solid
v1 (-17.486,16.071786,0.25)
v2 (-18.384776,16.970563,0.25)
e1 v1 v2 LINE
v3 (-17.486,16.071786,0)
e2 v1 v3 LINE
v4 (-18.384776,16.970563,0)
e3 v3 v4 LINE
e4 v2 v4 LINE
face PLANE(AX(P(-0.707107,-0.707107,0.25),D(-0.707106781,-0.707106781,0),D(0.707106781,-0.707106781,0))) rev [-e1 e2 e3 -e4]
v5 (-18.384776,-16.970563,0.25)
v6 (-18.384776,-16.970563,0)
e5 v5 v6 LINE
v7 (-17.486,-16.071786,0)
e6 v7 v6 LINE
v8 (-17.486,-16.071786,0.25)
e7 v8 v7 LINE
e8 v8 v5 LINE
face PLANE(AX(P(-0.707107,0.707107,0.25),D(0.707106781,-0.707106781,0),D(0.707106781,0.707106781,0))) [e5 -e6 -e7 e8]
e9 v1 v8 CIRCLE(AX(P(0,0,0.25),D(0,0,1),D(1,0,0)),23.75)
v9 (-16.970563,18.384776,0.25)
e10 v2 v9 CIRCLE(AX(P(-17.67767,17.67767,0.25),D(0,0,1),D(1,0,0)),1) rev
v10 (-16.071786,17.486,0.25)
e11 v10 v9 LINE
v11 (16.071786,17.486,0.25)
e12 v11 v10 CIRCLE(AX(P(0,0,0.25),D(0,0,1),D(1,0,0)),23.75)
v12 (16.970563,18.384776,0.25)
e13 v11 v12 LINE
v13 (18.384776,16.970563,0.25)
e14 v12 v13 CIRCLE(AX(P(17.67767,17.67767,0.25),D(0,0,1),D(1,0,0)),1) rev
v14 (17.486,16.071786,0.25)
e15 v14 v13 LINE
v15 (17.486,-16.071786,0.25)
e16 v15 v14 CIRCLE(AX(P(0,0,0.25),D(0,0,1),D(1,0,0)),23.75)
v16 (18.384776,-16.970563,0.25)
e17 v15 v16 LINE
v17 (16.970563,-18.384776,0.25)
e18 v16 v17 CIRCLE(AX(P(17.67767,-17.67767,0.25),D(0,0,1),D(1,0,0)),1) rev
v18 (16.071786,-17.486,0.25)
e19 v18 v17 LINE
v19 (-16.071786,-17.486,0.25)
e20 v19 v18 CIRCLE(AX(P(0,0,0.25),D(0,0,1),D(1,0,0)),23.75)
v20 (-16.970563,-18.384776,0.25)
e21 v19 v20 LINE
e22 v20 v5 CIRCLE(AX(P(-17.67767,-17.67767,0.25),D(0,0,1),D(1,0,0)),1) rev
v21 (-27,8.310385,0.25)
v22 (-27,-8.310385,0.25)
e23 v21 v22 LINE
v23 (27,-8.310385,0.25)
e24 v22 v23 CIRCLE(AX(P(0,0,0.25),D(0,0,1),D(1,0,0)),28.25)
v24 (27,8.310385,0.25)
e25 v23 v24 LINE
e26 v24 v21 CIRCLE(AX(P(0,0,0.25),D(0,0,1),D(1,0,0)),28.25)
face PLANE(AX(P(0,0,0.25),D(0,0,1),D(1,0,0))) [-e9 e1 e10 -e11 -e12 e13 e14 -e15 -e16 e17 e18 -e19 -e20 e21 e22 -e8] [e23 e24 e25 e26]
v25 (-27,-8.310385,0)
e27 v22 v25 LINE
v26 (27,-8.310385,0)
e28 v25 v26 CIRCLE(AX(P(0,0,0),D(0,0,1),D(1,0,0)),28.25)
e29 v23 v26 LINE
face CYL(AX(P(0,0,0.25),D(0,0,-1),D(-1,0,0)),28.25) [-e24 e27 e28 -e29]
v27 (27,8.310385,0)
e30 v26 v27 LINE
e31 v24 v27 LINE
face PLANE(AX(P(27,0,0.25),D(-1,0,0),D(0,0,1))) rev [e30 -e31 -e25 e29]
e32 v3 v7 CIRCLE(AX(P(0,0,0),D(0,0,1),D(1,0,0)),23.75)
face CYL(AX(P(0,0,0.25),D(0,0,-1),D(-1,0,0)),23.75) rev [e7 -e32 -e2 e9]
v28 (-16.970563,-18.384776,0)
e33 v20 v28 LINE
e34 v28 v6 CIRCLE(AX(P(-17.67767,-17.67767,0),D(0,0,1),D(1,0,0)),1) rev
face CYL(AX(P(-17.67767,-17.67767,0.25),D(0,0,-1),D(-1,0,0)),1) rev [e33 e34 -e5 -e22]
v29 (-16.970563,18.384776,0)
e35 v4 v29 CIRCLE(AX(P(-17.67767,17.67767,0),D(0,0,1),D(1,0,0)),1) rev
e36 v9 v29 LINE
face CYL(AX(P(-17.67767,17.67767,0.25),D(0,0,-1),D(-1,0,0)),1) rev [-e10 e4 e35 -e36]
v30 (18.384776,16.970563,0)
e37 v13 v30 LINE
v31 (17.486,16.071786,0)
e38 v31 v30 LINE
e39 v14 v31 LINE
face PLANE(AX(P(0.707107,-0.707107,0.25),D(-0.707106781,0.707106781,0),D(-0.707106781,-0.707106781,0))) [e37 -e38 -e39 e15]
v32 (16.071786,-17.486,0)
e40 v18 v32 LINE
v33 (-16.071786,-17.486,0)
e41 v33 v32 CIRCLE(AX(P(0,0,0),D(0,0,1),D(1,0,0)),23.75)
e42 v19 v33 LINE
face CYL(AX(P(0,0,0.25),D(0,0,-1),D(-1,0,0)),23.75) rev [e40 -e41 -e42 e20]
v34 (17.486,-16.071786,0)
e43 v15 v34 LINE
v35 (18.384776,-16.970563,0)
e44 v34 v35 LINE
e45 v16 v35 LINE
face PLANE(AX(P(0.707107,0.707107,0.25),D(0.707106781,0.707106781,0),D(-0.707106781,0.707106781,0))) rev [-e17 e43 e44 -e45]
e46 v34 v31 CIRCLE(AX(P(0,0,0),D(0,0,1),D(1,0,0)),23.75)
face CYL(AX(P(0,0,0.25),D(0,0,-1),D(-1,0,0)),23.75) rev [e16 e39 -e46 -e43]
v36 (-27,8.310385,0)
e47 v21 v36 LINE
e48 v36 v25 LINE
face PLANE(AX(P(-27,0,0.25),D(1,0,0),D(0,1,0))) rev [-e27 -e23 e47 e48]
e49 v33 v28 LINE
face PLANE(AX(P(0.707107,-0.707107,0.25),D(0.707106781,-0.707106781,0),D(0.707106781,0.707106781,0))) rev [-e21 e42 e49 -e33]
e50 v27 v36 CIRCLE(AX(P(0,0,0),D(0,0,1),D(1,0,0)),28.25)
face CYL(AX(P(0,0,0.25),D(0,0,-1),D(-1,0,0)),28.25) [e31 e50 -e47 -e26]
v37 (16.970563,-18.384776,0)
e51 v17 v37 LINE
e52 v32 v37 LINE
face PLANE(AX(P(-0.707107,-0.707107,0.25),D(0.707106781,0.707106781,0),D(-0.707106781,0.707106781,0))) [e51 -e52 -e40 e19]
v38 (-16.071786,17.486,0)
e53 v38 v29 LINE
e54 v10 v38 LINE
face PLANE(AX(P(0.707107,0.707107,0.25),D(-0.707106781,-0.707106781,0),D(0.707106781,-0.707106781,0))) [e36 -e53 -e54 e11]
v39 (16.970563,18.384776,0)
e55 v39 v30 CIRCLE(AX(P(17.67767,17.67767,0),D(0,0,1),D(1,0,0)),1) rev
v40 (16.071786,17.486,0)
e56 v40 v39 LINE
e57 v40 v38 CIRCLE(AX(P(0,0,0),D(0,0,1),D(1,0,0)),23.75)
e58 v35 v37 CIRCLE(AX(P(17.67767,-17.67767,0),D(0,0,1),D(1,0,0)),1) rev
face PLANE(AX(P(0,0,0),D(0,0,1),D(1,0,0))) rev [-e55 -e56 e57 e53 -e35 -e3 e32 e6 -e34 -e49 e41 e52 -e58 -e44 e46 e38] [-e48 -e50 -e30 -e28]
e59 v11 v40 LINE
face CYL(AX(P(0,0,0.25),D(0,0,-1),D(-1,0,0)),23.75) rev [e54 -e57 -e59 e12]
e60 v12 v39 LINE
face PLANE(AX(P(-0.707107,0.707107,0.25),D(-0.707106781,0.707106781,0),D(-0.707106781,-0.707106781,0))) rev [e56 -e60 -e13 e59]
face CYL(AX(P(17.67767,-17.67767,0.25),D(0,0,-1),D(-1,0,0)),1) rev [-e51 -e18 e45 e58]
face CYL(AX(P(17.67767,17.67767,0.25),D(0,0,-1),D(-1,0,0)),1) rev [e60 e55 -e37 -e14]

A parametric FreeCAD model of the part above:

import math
import FreeCAD as App
import Part
import Sketcher

V = App.Vector
Q = App.Units.Quantity

doc = App.newDocument("Part")
body = doc.addObject("PartDesign::Body", "Body")

# Sketch on XY plane
sketch1 = body.newObject("Sketcher::SketchObject", "Sketch")
sketch1.AttachmentSupport = (doc.getObject("XY_Plane"), [""])
sketch1.MapMode = "FlatFace"
sketch1.addGeometry([
    Part.ArcOfCircle(Part.Circle(V(0, 0, 0), V(0, 0, 1), 28.25), math.radians(-162.892051), math.radians(-17.107949)),  # 0
    Part.LineSegment(V(27, -8.310385, 0), V(27, 8.310385, 0)),  # 1
    Part.ArcOfCircle(Part.Circle(V(0, 0, 0), V(0, 0, 1), 28.25), math.radians(17.107949), math.radians(162.892051)),  # 2
    Part.LineSegment(V(-27, 8.310385, 0), V(-27, -8.310385, 0)),  # 3
    Part.ArcOfCircle(Part.Circle(V(-17.67767, -17.67767, 0), V(0, 0, 1), 1), math.radians(135), math.radians(315)),  # 4
    Part.LineSegment(V(-18.384776, -16.970563, 0), V(-17.486, -16.071786, 0)),  # 5
    Part.ArcOfCircle(Part.Circle(V(0, 0, 0), V(0, 0, 1), 23.75), math.radians(180), math.radians(222.586833)),  # 6
    Part.ArcOfCircle(Part.Circle(V(0, 0, 0), V(0, 0, 1), 23.75), math.radians(137.413167), math.radians(180)),  # 7
    Part.LineSegment(V(-17.486, 16.071786, 0), V(-18.384776, 16.970563, 0)),  # 8
    Part.ArcOfCircle(Part.Circle(V(-17.67767, 17.67767, 0), V(0, 0, 1), 1), math.radians(45), math.radians(225)),  # 9
    Part.LineSegment(V(-16.970563, 18.384776, 0), V(-16.071786, 17.486, 0)),  # 10
    Part.ArcOfCircle(Part.Circle(V(0, 0, 0), V(0, 0, 1), 23.75), math.radians(47.413167), math.radians(132.586833)),  # 11
    Part.LineSegment(V(16.071786, 17.486, 0), V(16.970563, 18.384776, 0)),  # 12
    Part.ArcOfCircle(Part.Circle(V(17.67767, 17.67767, 0), V(0, 0, 1), 1), math.radians(-45), math.radians(135)),  # 13
    Part.LineSegment(V(18.384776, 16.970563, 0), V(17.486, 16.071786, 0)),  # 14
    Part.ArcOfCircle(Part.Circle(V(0, 0, 0), V(0, 0, 1), 23.75), math.radians(-42.586833), math.radians(42.586833)),  # 15
    Part.LineSegment(V(17.486, -16.071786, 0), V(18.384776, -16.970563, 0)),  # 16
    Part.ArcOfCircle(Part.Circle(V(17.67767, -17.67767, 0), V(0, 0, 1), 1), math.radians(-135), math.radians(45)),  # 17
    Part.LineSegment(V(16.970563, -18.384776, 0), V(16.071786, -17.486, 0)),  # 18
    Part.ArcOfCircle(Part.Circle(V(0, 0, 0), V(0, 0, 1), 23.75), math.radians(-132.586833), math.radians(-47.413167)),  # 19
    Part.LineSegment(V(-16.071786, -17.486, 0), V(-16.970563, -18.384776, 0)),  # 20
], False)
sketch1.addConstraint([
    Sketcher.Constraint("Coincident", 0, 2, 1, 1),
    Sketcher.Constraint("Coincident", 1, 2, 2, 1),
    Sketcher.Constraint("Coincident", 2, 2, 3, 1),
    Sketcher.Constraint("Coincident", 3, 2, 0, 1),
    Sketcher.Constraint("Tangent", 4, 1, 5, 1),
    Sketcher.Constraint("Coincident", 5, 2, 6, 2),
    Sketcher.Constraint("Tangent", 6, 1, 7, 2),
    Sketcher.Constraint("Coincident", 7, 1, 8, 1),
    Sketcher.Constraint("Tangent", 8, 2, 9, 2),
    Sketcher.Constraint("Tangent", 9, 1, 10, 1),
    Sketcher.Constraint("Coincident", 10, 2, 11, 2),
    Sketcher.Constraint("Coincident", 11, 1, 12, 1),
    Sketcher.Constraint("Tangent", 12, 2, 13, 2),
    Sketcher.Constraint("Tangent", 13, 1, 14, 1),
    Sketcher.Constraint("Coincident", 14, 2, 15, 2),
    Sketcher.Constraint("Coincident", 15, 1, 16, 1),
    Sketcher.Constraint("Tangent", 16, 2, 17, 2),
    Sketcher.Constraint("Tangent", 17, 1, 18, 1),
    Sketcher.Constraint("Coincident", 18, 2, 19, 2),
    Sketcher.Constraint("Coincident", 19, 1, 20, 1),
    Sketcher.Constraint("Tangent", 20, 2, 4, 2),
    Sketcher.Constraint("Vertical", 1),
    Sketcher.Constraint("Vertical", 3),
    Sketcher.Constraint("Coincident", 0, 3, -1, 1),
    Sketcher.Constraint("Coincident", 2, 3, -1, 1),
    Sketcher.Constraint("Coincident", 6, 3, -1, 1),
    Sketcher.Constraint("Coincident", 11, 3, -1, 1),
    Sketcher.Constraint("Coincident", 15, 3, -1, 1),
    Sketcher.Constraint("Coincident", 19, 3, -1, 1),
    Sketcher.Constraint("Equal", 0, 2),
    Sketcher.Constraint("Equal", 6, 7),
    Sketcher.Constraint("Equal", 4, 9),
    Sketcher.Constraint("Equal", 7, 11),
    Sketcher.Constraint("Equal", 9, 13),
    Sketcher.Constraint("Equal", 11, 15),
    Sketcher.Constraint("Equal", 13, 17),
    Sketcher.Constraint("Equal", 15, 19),
    Sketcher.Constraint("Symmetric", 4, 3, 13, 3, -1, 1),
    Sketcher.Constraint("Symmetric", 9, 3, 17, 3, -1, 1),
    Sketcher.Constraint("Symmetric", 9, 3, 13, 3, -2),
    Sketcher.Constraint("PointOnObject", 6, 1, -1),
    Sketcher.Constraint("Perpendicular", 5, 8),
    Sketcher.Constraint("Parallel", 8, 10),
    Sketcher.Constraint("Perpendicular", 10, 12),
    Sketcher.Constraint("Parallel", 12, 14),
    Sketcher.Constraint("Perpendicular", 14, 16),
    Sketcher.Constraint("Parallel", 16, 18),
    Sketcher.Constraint("Perpendicular", 18, 20),
    Sketcher.Constraint("Horizontal", 1, 2, 2, 2),
    Sketcher.Constraint("Horizontal", 10, 2, 11, 1),
    Sketcher.Constraint("Equal", 8, 10),
    Sketcher.Constraint("Radius", 4, Q("1 mm")),
    Sketcher.Constraint("Radius", 0, Q("28.25 mm")),
    Sketcher.Constraint("Radius", 6, Q("23.75 mm")),
    Sketcher.Constraint("DistanceX", -1, 1, 0, 2, Q("27 mm")),
    Sketcher.Constraint("Distance", 5, Q("1.271062 mm")),
])
pad1 = body.newObject("PartDesign::Pad", "Pad")
pad1.Profile = sketch1
pad1.Length = 0.25

doc.recompute()
